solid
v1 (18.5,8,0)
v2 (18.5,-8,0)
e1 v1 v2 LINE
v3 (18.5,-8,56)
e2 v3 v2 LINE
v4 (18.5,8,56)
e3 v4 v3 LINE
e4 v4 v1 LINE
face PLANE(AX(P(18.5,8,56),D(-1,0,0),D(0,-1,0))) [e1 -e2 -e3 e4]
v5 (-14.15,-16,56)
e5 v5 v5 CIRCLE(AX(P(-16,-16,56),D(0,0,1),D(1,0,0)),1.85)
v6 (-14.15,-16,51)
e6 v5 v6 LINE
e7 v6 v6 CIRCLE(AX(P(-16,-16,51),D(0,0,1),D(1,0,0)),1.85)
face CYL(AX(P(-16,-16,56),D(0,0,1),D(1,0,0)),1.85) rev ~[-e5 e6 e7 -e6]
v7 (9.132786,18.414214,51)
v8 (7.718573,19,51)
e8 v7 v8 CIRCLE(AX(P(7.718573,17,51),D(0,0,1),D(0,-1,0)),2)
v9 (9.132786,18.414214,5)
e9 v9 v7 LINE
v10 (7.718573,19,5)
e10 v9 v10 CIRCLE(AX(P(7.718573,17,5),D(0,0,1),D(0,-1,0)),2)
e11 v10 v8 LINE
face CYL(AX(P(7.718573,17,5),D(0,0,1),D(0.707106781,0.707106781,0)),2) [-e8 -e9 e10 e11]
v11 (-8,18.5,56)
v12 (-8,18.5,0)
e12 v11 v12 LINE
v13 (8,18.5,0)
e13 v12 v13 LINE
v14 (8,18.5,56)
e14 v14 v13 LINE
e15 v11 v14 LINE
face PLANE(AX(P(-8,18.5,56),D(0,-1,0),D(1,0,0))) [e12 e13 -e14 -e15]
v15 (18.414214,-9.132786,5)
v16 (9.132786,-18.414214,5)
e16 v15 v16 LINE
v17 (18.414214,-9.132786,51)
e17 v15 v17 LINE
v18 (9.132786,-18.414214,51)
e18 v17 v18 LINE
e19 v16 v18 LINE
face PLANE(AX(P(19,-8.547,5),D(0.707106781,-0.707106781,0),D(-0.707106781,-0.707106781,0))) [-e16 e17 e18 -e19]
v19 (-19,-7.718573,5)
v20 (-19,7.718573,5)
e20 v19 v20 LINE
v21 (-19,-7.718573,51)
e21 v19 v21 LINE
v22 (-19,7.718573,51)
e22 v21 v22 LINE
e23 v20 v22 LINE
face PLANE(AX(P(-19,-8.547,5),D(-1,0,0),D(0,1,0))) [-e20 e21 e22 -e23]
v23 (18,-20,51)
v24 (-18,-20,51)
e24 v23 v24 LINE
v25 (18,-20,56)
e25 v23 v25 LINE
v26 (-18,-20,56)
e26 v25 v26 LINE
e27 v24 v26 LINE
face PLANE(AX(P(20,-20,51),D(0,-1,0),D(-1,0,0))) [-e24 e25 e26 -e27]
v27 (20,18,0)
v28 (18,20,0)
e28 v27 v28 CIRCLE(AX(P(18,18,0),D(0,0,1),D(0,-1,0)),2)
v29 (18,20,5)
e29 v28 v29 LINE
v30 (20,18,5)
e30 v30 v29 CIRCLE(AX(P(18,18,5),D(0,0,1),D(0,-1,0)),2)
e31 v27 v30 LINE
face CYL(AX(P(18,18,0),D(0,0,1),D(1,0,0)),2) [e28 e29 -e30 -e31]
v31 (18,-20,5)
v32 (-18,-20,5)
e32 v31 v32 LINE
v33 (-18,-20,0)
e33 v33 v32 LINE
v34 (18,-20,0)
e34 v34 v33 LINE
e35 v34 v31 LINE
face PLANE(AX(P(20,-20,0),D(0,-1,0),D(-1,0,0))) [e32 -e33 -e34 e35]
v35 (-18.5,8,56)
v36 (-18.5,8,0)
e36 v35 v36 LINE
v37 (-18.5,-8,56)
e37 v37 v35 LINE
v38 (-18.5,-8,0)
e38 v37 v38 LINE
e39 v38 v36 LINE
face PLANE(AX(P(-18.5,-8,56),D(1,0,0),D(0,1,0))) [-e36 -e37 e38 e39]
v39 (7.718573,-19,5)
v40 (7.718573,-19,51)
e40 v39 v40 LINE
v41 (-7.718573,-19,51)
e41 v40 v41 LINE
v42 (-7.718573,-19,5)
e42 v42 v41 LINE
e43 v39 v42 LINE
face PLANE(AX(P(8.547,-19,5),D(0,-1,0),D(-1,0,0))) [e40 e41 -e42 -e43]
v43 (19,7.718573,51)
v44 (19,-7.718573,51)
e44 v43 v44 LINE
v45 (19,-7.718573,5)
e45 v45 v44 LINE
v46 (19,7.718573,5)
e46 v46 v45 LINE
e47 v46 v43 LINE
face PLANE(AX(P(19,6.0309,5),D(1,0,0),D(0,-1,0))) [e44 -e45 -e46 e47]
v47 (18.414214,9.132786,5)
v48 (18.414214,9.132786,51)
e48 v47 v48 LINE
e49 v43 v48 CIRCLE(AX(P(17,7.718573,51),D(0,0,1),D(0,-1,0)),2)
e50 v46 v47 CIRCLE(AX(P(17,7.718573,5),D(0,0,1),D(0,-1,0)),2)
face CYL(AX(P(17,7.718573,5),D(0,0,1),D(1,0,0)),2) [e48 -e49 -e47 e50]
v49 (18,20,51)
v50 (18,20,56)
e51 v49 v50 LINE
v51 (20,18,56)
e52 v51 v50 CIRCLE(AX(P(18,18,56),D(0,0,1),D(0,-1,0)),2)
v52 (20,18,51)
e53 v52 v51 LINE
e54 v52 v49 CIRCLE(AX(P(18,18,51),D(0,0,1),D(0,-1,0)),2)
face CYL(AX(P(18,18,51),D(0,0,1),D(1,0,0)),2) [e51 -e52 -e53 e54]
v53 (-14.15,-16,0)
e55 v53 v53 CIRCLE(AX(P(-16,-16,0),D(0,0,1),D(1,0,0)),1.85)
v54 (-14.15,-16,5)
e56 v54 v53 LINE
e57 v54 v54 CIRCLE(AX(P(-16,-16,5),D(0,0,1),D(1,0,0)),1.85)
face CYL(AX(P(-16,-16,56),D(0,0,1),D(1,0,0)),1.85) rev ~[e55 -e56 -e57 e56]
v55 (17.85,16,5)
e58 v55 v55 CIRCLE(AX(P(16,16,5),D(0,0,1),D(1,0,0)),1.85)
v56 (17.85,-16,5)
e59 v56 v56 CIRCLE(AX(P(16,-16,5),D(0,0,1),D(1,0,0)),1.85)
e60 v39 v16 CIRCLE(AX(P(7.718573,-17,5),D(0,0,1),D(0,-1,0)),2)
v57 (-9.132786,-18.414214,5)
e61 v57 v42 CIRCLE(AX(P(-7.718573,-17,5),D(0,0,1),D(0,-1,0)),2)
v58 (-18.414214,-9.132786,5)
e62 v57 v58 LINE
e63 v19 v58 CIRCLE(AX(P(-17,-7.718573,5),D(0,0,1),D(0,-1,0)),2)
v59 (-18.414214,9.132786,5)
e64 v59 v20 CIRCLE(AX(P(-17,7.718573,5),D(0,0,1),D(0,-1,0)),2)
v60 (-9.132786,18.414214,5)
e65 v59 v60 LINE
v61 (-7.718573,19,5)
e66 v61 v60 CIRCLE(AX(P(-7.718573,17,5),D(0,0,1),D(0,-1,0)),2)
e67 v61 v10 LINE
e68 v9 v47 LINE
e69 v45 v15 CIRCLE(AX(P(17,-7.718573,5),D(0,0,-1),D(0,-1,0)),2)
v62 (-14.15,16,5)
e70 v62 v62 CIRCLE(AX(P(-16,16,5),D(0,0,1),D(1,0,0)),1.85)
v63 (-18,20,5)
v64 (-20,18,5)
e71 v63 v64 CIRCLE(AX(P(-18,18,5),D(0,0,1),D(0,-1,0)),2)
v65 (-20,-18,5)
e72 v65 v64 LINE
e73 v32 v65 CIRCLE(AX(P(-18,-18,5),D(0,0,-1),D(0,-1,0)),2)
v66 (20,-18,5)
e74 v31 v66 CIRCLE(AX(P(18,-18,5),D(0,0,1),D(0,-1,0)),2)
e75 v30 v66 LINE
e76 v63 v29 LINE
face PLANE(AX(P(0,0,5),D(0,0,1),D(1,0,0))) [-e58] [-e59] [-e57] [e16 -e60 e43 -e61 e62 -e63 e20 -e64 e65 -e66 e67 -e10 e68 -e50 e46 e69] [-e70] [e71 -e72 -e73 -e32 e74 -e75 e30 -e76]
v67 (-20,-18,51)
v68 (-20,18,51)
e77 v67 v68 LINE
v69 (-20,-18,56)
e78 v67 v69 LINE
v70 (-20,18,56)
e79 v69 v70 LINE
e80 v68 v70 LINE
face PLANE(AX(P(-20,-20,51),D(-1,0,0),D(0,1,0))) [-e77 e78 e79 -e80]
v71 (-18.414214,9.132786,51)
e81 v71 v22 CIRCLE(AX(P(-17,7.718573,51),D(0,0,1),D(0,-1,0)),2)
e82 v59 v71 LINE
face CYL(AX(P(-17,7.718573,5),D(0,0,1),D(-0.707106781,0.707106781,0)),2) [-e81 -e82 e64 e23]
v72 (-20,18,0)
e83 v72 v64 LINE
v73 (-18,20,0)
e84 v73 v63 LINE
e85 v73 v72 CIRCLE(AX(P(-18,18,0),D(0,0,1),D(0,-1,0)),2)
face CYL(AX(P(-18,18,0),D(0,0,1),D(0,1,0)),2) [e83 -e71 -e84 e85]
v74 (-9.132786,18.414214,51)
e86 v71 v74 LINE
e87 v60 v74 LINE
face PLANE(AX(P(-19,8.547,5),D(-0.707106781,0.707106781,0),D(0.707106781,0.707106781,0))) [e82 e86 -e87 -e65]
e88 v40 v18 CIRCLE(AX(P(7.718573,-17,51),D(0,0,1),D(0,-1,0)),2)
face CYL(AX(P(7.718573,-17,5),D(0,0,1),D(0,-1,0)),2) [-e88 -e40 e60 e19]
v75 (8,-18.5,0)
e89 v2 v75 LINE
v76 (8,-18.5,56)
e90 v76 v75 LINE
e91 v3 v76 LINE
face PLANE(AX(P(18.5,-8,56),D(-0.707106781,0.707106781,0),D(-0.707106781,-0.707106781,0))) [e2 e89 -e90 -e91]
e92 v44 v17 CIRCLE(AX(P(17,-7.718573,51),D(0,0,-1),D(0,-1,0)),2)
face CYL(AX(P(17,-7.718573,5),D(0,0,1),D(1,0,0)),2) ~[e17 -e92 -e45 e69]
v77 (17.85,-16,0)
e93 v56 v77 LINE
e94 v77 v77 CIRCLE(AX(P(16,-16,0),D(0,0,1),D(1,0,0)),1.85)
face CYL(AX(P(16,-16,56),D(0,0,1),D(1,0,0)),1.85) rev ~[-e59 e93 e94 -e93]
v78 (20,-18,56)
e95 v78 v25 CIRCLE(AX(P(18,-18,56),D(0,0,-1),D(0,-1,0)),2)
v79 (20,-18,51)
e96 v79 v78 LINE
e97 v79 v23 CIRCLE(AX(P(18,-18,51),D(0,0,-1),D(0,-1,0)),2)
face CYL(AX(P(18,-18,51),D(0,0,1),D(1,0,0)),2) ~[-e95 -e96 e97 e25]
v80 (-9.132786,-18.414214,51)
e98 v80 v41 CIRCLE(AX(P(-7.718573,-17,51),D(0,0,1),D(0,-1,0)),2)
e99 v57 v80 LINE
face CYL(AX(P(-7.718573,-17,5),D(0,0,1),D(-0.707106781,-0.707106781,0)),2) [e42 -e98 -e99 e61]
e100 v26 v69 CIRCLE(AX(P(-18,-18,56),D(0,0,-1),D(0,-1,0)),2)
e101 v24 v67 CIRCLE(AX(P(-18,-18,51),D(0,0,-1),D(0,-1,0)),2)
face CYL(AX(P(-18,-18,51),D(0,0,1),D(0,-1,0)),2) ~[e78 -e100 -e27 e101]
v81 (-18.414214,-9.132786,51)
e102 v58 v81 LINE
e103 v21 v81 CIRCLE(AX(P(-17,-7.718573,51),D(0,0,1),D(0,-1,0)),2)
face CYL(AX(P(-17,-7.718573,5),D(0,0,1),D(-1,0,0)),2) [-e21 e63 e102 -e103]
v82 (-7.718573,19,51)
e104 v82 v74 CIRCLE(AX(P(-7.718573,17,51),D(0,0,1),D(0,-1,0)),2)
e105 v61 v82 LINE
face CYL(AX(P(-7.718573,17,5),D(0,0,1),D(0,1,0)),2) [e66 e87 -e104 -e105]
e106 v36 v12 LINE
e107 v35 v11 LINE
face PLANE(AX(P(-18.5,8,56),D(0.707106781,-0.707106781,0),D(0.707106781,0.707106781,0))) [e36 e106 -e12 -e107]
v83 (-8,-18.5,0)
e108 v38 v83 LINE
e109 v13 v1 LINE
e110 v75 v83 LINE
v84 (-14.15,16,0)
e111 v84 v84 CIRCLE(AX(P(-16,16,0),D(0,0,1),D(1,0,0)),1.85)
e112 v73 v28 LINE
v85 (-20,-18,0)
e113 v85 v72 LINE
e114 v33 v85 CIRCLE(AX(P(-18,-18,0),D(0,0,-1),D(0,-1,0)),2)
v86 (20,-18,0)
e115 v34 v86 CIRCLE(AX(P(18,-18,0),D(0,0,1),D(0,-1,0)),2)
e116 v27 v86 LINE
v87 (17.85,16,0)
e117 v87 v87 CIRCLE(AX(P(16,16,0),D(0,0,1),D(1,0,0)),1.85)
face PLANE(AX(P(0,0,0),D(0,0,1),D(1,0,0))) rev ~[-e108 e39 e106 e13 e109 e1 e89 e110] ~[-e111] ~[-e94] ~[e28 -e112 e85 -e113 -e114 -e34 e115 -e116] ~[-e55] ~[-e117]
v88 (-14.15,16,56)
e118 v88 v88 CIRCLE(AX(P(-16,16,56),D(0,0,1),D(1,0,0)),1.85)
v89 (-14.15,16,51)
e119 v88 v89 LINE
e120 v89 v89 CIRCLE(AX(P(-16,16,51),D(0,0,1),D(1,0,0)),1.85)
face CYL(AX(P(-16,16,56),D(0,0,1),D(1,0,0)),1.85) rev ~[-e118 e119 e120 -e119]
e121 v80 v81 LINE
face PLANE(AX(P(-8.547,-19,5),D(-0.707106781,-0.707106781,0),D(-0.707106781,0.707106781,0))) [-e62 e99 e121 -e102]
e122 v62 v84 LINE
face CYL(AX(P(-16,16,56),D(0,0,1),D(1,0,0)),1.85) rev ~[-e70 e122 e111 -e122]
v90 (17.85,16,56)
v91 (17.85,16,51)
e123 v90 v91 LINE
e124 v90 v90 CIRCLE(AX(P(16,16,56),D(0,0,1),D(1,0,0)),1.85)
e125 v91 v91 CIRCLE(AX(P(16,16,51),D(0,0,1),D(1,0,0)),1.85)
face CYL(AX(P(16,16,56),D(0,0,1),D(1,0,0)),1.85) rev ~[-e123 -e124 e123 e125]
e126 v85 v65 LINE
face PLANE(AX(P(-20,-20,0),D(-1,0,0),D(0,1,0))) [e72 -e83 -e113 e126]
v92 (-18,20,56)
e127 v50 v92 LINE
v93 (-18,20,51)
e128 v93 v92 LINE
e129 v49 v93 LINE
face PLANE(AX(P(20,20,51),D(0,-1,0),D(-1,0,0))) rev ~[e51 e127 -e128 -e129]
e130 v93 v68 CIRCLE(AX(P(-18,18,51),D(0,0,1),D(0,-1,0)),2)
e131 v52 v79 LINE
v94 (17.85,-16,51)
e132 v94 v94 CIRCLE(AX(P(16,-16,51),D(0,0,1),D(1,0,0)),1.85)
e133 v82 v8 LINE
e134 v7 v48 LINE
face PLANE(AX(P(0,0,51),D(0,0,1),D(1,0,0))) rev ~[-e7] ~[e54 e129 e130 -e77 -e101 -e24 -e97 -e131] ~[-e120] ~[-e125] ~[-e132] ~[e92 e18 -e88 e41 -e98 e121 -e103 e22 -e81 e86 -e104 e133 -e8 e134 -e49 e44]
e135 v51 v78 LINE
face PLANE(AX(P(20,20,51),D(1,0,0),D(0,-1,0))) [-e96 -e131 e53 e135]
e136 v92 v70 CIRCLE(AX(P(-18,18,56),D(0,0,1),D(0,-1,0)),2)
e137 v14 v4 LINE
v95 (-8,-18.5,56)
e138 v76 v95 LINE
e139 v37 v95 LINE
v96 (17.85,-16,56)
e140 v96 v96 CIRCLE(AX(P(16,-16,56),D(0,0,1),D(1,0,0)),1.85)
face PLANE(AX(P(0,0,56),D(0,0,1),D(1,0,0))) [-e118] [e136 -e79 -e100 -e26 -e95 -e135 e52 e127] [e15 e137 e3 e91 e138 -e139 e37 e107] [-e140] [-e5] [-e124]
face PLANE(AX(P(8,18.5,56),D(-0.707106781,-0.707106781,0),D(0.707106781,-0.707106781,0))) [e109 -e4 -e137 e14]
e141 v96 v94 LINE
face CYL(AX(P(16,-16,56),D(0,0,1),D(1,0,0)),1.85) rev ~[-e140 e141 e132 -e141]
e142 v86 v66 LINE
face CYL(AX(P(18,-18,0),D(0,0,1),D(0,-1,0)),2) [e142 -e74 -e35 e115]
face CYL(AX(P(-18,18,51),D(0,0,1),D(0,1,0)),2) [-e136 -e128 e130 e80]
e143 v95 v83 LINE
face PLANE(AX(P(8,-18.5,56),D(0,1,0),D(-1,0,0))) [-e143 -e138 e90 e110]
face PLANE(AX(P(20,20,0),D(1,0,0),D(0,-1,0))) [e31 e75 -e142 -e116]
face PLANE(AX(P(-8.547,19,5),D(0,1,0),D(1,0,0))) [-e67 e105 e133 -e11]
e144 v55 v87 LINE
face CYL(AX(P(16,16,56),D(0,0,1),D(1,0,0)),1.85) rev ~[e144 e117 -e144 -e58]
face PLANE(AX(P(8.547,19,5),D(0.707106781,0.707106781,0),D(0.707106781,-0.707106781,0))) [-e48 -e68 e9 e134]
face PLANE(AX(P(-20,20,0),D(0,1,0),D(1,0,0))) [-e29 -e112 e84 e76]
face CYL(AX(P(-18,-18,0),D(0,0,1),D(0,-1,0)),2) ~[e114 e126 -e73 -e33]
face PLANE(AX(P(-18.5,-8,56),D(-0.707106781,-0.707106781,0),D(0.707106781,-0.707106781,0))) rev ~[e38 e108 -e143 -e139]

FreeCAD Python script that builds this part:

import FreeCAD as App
import Part
import Sketcher
from FreeCAD import Vector
Q = App.Units.Quantity


def edges_at(feature, points):
    """Names of the edges that pass closest to the given points."""
    edges = feature.Shape.Edges
    near = lambda p: min(range(len(edges)), key=lambda i: edges[i].distToShape(Part.Vertex(*p))[0])
    return sorted({f"Edge{near(p) + 1}" for p in points})

doc = App.newDocument("Part")
params = doc.addObject("Spreadsheet::Sheet", "Params")
for row, (alias, value) in enumerate([
    ("sketch1_width", "40 mm"),
    ("pad1_length", "5 mm"),
    ("pad2_length", "46 mm"),
    ("sketch3_width", "40 mm"),
    ("pad3_length", "5 mm"),
    ("fillet_radius", "2 mm"),
    ("sketch5_diameter", "3.7 mm"),
    ("pocket2_length", "56 mm"),
], start=1):
    params.set(f"A{row}", alias)
    params.set(f"B{row}", "=" + value)
    params.setAlias(f"B{row}", alias)

body = doc.addObject("PartDesign::Body", "Body")

sketch1 = doc.addObject("Sketcher::SketchObject", "Sketch")
body.addObject(sketch1)
sketch1.AttachmentSupport = (doc.XY_Plane, [""])
sketch1.MapMode = "FlatFace"
sketch1.addGeometry(Part.LineSegment(Vector(-20, -20, 0), Vector(20, -20, 0)), False)
sketch1.addGeometry(Part.LineSegment(Vector(20, -20, 0), Vector(20, 20, 0)), False)
sketch1.addGeometry(Part.LineSegment(Vector(20, 20, 0), Vector(-20, 20, 0)), False)
sketch1.addGeometry(Part.LineSegment(Vector(-20, 20, 0), Vector(-20, -20, 0)), False)
sketch1.addConstraint(Sketcher.Constraint("Coincident", 0, 2, 1, 1))
sketch1.addConstraint(Sketcher.Constraint("Coincident", 1, 2, 2, 1))
sketch1.addConstraint(Sketcher.Constraint("Coincident", 2, 2, 3, 1))
sketch1.addConstraint(Sketcher.Constraint("Coincident", 3, 2, 0, 1))
sketch1.addConstraint(Sketcher.Constraint("Horizontal", 0))
sketch1.addConstraint(Sketcher.Constraint("Vertical", 1))
sketch1.addConstraint(Sketcher.Constraint("Horizontal", 2))
sketch1.addConstraint(Sketcher.Constraint("Vertical", 3))
sketch1.addConstraint(Sketcher.Constraint("Symmetric", 0, 2, 2, 2, -1, 1))
sketch1.addConstraint(Sketcher.Constraint("Equal", 2, 1))
sketch1.addConstraint(Sketcher.Constraint("DistanceX", 0, 1, 0, 2, Q("40 mm")))
sketch1.setExpression("Constraints[10]", "Params.sketch1_width")
pad1 = doc.addObject("PartDesign::Pad", "Pad")
body.addObject(pad1)
pad1.Profile = sketch1
pad1.setExpression("Length", "Params.pad1_length")

sketch2 = doc.addObject("Sketcher::SketchObject", "Sketch001")
body.addObject(sketch2)
sketch2.AttachmentSupport = (doc.XY_Plane, [""])
sketch2.MapMode = "FlatFace"
sketch2.AttachmentOffset = App.Placement(Vector(0, 0, 5), App.Rotation())
sketch2.addGeometry(Part.LineSegment(Vector(-9, -19, 0), Vector(9, -19, 0)), False)
sketch2.addGeometry(Part.LineSegment(Vector(9, -19, 0), Vector(19, -9, 0)), False)
sketch2.addGeometry(Part.LineSegment(Vector(19, -9, 0), Vector(19, 9, 0)), False)
sketch2.addGeometry(Part.LineSegment(Vector(19, 9, 0), Vector(9, 19, 0)), False)
sketch2.addGeometry(Part.LineSegment(Vector(9, 19, 0), Vector(-9, 19, 0)), False)
sketch2.addGeometry(Part.LineSegment(Vector(-9, 19, 0), Vector(-19, 9, 0)), False)
sketch2.addGeometry(Part.LineSegment(Vector(-19, 9, 0), Vector(-19, -9, 0)), False)
sketch2.addGeometry(Part.LineSegment(Vector(-19, -9, 0), Vector(-9, -19, 0)), False)
sketch2.addConstraint(Sketcher.Constraint("Coincident", 0, 2, 1, 1))
sketch2.addConstraint(Sketcher.Constraint("Coincident", 1, 2, 2, 1))
sketch2.addConstraint(Sketcher.Constraint("Coincident", 2, 2, 3, 1))
sketch2.addConstraint(Sketcher.Constraint("Coincident", 3, 2, 4, 1))
sketch2.addConstraint(Sketcher.Constraint("Coincident", 4, 2, 5, 1))
sketch2.addConstraint(Sketcher.Constraint("Coincident", 5, 2, 6, 1))
sketch2.addConstraint(Sketcher.Constraint("Coincident", 6, 2, 7, 1))
sketch2.addConstraint(Sketcher.Constraint("Coincident", 7, 2, 0, 1))
sketch2.addConstraint(Sketcher.Constraint("Horizontal", 0))
sketch2.addConstraint(Sketcher.Constraint("Vertical", 2))
sketch2.addConstraint(Sketcher.Constraint("Horizontal", 4))
sketch2.addConstraint(Sketcher.Constraint("Vertical", 6))
sketch2.addConstraint(Sketcher.Constraint("Symmetric", 0, 2, 4, 2, -1, 1))
sketch2.addConstraint(Sketcher.Constraint("Symmetric", 1, 2, 5, 2, -1, 1))
sketch2.addConstraint(Sketcher.Constraint("Perpendicular", 1, 3))
sketch2.addConstraint(Sketcher.Constraint("Perpendicular", 5, 7))
sketch2.addConstraint(Sketcher.Constraint("Horizontal", 2, 2, 5, 2))
sketch2.addConstraint(Sketcher.Constraint("Horizontal", 1, 2, 6, 2))
sketch2.addConstraint(Sketcher.Constraint("Vertical", 0, 2, 3, 2))
sketch2.addConstraint(Sketcher.Constraint("Equal", 4, 2))
sketch2.addConstraint(Sketcher.Constraint("DistanceY", 0, 2, 3, 2, Q("38 mm")))
sketch2.addConstraint(Sketcher.Constraint("DistanceX", 0, 2, 1, 2, Q("10.453 mm")))
pad2 = doc.addObject("PartDesign::Pad", "Pad001")
body.addObject(pad2)
pad2.Profile = sketch2
pad2.setExpression("Length", "Params.pad2_length")

sketch3 = doc.addObject("Sketcher::SketchObject", "Sketch002")
body.addObject(sketch3)
sketch3.AttachmentSupport = (doc.XY_Plane, [""])
sketch3.MapMode = "FlatFace"
sketch3.AttachmentOffset = App.Placement(Vector(0, 0, 51), App.Rotation())
sketch3.addGeometry(Part.LineSegment(Vector(20, -20, 0), Vector(20, 20, 0)), False)
sketch3.addGeometry(Part.LineSegment(Vector(20, 20, 0), Vector(-20, 20, 0)), False)
sketch3.addGeometry(Part.LineSegment(Vector(-20, 20, 0), Vector(-20, -20, 0)), False)
sketch3.addGeometry(Part.LineSegment(Vector(-20, -20, 0), Vector(20, -20, 0)), False)
sketch3.addConstraint(Sketcher.Constraint("Coincident", 0, 2, 1, 1))
sketch3.addConstraint(Sketcher.Constraint("Coincident", 1, 2, 2, 1))
sketch3.addConstraint(Sketcher.Constraint("Coincident", 2, 2, 3, 1))
sketch3.addConstraint(Sketcher.Constraint("Coincident", 3, 2, 0, 1))
sketch3.addConstraint(Sketcher.Constraint("Vertical", 0))
sketch3.addConstraint(Sketcher.Constraint("Horizontal", 1))
sketch3.addConstraint(Sketcher.Constraint("Vertical", 2))
sketch3.addConstraint(Sketcher.Constraint("Horizontal", 3))
sketch3.addConstraint(Sketcher.Constraint("Symmetric", 0, 2, 2, 2, -1, 1))
sketch3.addConstraint(Sketcher.Constraint("Equal", 3, 0))
sketch3.addConstraint(Sketcher.Constraint("DistanceX", 1, 2, 1, 1, Q("40 mm")))
sketch3.setExpression("Constraints[10]", "Params.sketch3_width")
pad3 = doc.addObject("PartDesign::Pad", "Pad002")
body.addObject(pad3)
pad3.Profile = sketch3
pad3.setExpression("Length", "Params.pad3_length")

sketch4 = doc.addObject("Sketcher::SketchObject", "Sketch003")
body.addObject(sketch4)
sketch4.AttachmentSupport = (doc.XY_Plane, [""])
sketch4.MapMode = "FlatFace"
sketch4.AttachmentOffset = App.Placement(Vector(0, 0, 56), App.Rotation())
sketch4.addGeometry(Part.LineSegment(Vector(-8, -18, 0), Vector(8, -18, 0)), False)
sketch4.addGeometry(Part.LineSegment(Vector(8, -18, 0), Vector(18, -8, 0)), False)
sketch4.addGeometry(Part.LineSegment(Vector(18, -8, 0), Vector(18, 8, 0)), False)
sketch4.addGeometry(Part.LineSegment(Vector(18, 8, 0), Vector(8, 18, 0)), False)
sketch4.addGeometry(Part.LineSegment(Vector(8, 18, 0), Vector(-8, 18, 0)), False)
sketch4.addGeometry(Part.LineSegment(Vector(-8, 18, 0), Vector(-18, 8, 0)), False)
sketch4.addGeometry(Part.LineSegment(Vector(-18, 8, 0), Vector(-18, -8, 0)), False)
sketch4.addGeometry(Part.LineSegment(Vector(-18, -8, 0), Vector(-8, -18, 0)), False)
sketch4.addConstraint(Sketcher.Constraint("Coincident", 0, 2, 1, 1))
sketch4.addConstraint(Sketcher.Constraint("Coincident", 1, 2, 2, 1))
sketch4.addConstraint(Sketcher.Constraint("Coincident", 2, 2, 3, 1))
sketch4.addConstraint(Sketcher.Constraint("Coincident", 3, 2, 4, 1))
sketch4.addConstraint(Sketcher.Constraint("Coincident", 4, 2, 5, 1))
sketch4.addConstraint(Sketcher.Constraint("Coincident", 5, 2, 6, 1))
sketch4.addConstraint(Sketcher.Constraint("Coincident", 6, 2, 7, 1))
sketch4.addConstraint(Sketcher.Constraint("Coincident", 7, 2, 0, 1))
sketch4.addConstraint(Sketcher.Constraint("Horizontal", 0))
sketch4.addConstraint(Sketcher.Constraint("Vertical", 2))
sketch4.addConstraint(Sketcher.Constraint("Horizontal", 4))
sketch4.addConstraint(Sketcher.Constraint("Vertical", 6))
sketch4.addConstraint(Sketcher.Constraint("Symmetric", 0, 2, 4, 2, -1, 1))
sketch4.addConstraint(Sketcher.Constraint("Symmetric", 1, 2, 5, 2, -1, 1))
sketch4.addConstraint(Sketcher.Constraint("Perpendicular", 1, 3))
sketch4.addConstraint(Sketcher.Constraint("Perpendicular", 5, 7))
sketch4.addConstraint(Sketcher.Constraint("Horizontal", 2, 2, 5, 2))
sketch4.addConstraint(Sketcher.Constraint("Horizontal", 1, 2, 6, 2))
sketch4.addConstraint(Sketcher.Constraint("Vertical", 0, 2, 3, 2))
sketch4.addConstraint(Sketcher.Constraint("Equal", 4, 2))
sketch4.addConstraint(Sketcher.Constraint("DistanceY", 0, 2, 3, 2, Q("37 mm")))
sketch4.addConstraint(Sketcher.Constraint("DistanceX", 0, 2, 1, 2, Q("10.5 mm")))
pocket1 = doc.addObject("PartDesign::Pocket", "Pocket")
body.addObject(pocket1)
pocket1.Profile = sketch4
pocket1.Type = "ThroughAll"
doc.recompute()

fillet = doc.addObject("PartDesign::Fillet", "Fillet")
body.addObject(fillet)
fillet.Base = (pocket1, edges_at(pocket1, [
    (20, 20, 53.5),
    (20, 20, 2.5),
    (-20, 20, 53.5),
    (-20, 20, 2.5),
    (-20, -20, 53.5),
    (-20, -20, 2.5),
    (20, -20, 53.5),
    (20, -20, 2.5),
    (19, -8.547, 28),
    (8.547, -19, 28),
    (-8.547, -19, 28),
    (-19, -8.547, 28),
    (-19, 8.547, 28),
    (-8.547, 19, 28),
    (8.547, 19, 28),
    (19, 8.547, 28),
]))
fillet.setExpression("Radius", "Params.fillet_radius")

sketch5 = doc.addObject("Sketcher::SketchObject", "Sketch004")
body.addObject(sketch5)
sketch5.AttachmentSupport = (doc.XY_Plane, [""])
sketch5.MapMode = "FlatFace"
sketch5.AttachmentOffset = App.Placement(Vector(0, 0, 56), App.Rotation())
sketch5.addGeometry(Part.Circle(Vector(16, 16, 0), Vector(0, 0, 1), 1.9), False)
sketch5.addGeometry(Part.Circle(Vector(16, -16, 0), Vector(0, 0, 1), 1.9), False)
sketch5.addGeometry(Part.Circle(Vector(-16, -16, 0), Vector(0, 0, 1), 1.9), False)
sketch5.addGeometry(Part.Circle(Vector(-16, 16, 0), Vector(0, 0, 1), 1.9), False)
sketch5.addConstraint(Sketcher.Constraint("Equal", 0, 1))
sketch5.addConstraint(Sketcher.Constraint("Equal", 1, 2))
sketch5.addConstraint(Sketcher.Constraint("Equal", 2, 3))
sketch5.addConstraint(Sketcher.Constraint("Symmetric", 0, 3, 2, 3, -1, 1))
sketch5.addConstraint(Sketcher.Constraint("Symmetric", 1, 3, 3, 3, -1, 1))
sketch5.addConstraint(Sketcher.Constraint("Symmetric", 1, 3, 2, 3, -2))
sketch5.addConstraint(Sketcher.Constraint("Diameter", 0, Q("3.7 mm")))
sketch5.addConstraint(Sketcher.Constraint("DistanceY", 1, 3, 0, 3, Q("32 mm")))
sketch5.addConstraint(Sketcher.Constraint("DistanceX", 2, 3, 1, 3, Q("32 mm")))
sketch5.setExpression("Constraints[6]", "Params.sketch5_diameter")
pocket2 = doc.addObject("PartDesign::Pocket", "Pocket001")
body.addObject(pocket2)
pocket2.Profile = sketch5
pocket2.setExpression("Length", "Params.pocket2_length")

doc.recompute()
